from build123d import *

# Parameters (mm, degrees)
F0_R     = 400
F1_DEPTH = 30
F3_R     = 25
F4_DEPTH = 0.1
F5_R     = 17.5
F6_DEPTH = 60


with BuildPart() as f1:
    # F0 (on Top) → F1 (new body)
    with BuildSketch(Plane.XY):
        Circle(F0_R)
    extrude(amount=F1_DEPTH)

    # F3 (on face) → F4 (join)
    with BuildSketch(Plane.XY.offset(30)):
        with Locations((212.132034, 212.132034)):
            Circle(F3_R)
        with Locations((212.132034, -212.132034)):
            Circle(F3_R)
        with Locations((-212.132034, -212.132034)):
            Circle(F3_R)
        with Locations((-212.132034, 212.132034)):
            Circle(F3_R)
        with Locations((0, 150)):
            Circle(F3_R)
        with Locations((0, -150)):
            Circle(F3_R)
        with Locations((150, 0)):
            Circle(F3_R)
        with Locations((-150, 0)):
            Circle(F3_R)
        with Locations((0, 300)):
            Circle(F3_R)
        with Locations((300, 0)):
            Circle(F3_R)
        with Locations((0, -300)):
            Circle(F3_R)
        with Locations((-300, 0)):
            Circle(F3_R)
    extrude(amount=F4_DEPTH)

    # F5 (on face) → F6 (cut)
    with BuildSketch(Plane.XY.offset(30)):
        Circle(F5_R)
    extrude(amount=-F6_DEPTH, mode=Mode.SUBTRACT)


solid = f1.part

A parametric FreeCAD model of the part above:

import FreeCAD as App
import Part
import Sketcher

V = App.Vector

doc = App.newDocument("Part")
body = doc.addObject("PartDesign::Body", "Body")

# Sketch on XY plane
sketch1 = body.newObject("Sketcher::SketchObject", "Sketch")
sketch1.AttachmentSupport = (doc.getObject("XY_Plane"), [""])
sketch1.MapMode = "FlatFace"
sketch1.addGeometry(Part.Circle(V(0, 0, 0), V(0, 0, 1), 400), False)
sketch1.addConstraint([
    Sketcher.Constraint("Coincident", 0, 3, -1, 1),
    Sketcher.Constraint("Diameter", 0, 800.0),
])
pad1 = body.newObject("PartDesign::Pad", "Pad")
pad1.Profile = sketch1
pad1.Length = 30

# Sketch on XY plane
sketch2 = body.newObject("Sketcher::SketchObject", "Sketch001")
sketch2.AttachmentSupport = (doc.getObject("XY_Plane"), [""])
sketch2.MapMode = "FlatFace"
sketch2.AttachmentOffset = App.Placement(V(0, 0, 30), App.Rotation())
sketch2.addGeometry([
    Part.Circle(V(212.132034, 212.132034, 0), V(0, 0, 1), 25),  # 0
    Part.Circle(V(212.132034, -212.132034, 0), V(0, 0, 1), 25),  # 1
    Part.Circle(V(-212.132034, -212.132034, 0), V(0, 0, 1), 25),  # 2
    Part.Circle(V(-212.132034, 212.132034, 0), V(0, 0, 1), 25),  # 3
    Part.Circle(V(0, 150, 0), V(0, 0, 1), 25),  # 4
    Part.Circle(V(0, -150, 0), V(0, 0, 1), 25),  # 5
    Part.Circle(V(150, 0, 0), V(0, 0, 1), 25),  # 6
    Part.Circle(V(-150, 0, 0), V(0, 0, 1), 25),  # 7
    Part.Circle(V(0, 300, 0), V(0, 0, 1), 25),  # 8
    Part.Circle(V(300, 0, 0), V(0, 0, 1), 25),  # 9
    Part.Circle(V(0, -300, 0), V(0, 0, 1), 25),  # 10
    Part.Circle(V(-300, 0, 0), V(0, 0, 1), 25),  # 11
], False)
sketch2.addConstraint([
    Sketcher.Constraint("Equal", 0, 1),
    Sketcher.Constraint("Equal", 1, 2),
    Sketcher.Constraint("Equal", 2, 3),
    Sketcher.Constraint("Equal", 3, 4),
    Sketcher.Constraint("Equal", 4, 5),
    Sketcher.Constraint("Equal", 5, 6),
    Sketcher.Constraint("Equal", 6, 7),
    Sketcher.Constraint("Equal", 7, 8),
    Sketcher.Constraint("Equal", 8, 9),
    Sketcher.Constraint("Equal", 9, 10),
    Sketcher.Constraint("Equal", 10, 11),
    Sketcher.Constraint("Symmetric", 0, 3, 2, 3, -1, 1),
    Sketcher.Constraint("Symmetric", 1, 3, 3, 3, -1, 1),
    Sketcher.Constraint("Symmetric", 4, 3, 5, 3, -1, 1),
    Sketcher.Constraint("Symmetric", 6, 3, 7, 3, -1, 1),
    Sketcher.Constraint("Symmetric", 8, 3, 10, 3, -1, 1),
    Sketcher.Constraint("Symmetric", 9, 3, 11, 3, -1, 1),
    Sketcher.Constraint("Symmetric", 1, 3, 2, 3, -2),
    Sketcher.Constraint("PointOnObject", 4, 3, -2),
    Sketcher.Constraint("PointOnObject", 6, 3, -1),
    Sketcher.Constraint("PointOnObject", 8, 3, -2),
    Sketcher.Constraint("PointOnObject", 9, 3, -1),
    Sketcher.Constraint("Diameter", 0, 50.0),
    Sketcher.Constraint("DistanceY", -1, 1, 4, 3, 150.0),
    Sketcher.Constraint("DistanceX", -1, 1, 6, 3, 150.0),
    Sketcher.Constraint("DistanceY", -1, 1, 8, 3, 300.0),
    Sketcher.Constraint("DistanceX", -1, 1, 9, 3, 300.0),
    Sketcher.Constraint("DistanceY", 1, 3, 0, 3, 424.264068),
    Sketcher.Constraint("DistanceX", 2, 3, 1, 3, 424.264068),
])
pad2 = body.newObject("PartDesign::Pad", "Pad001")
pad2.Profile = sketch2
pad2.Length = 0.1

# Sketch on XY plane
sketch3 = body.newObject("Sketcher::SketchObject", "Sketch002")
sketch3.AttachmentSupport = (doc.getObject("XY_Plane"), [""])
sketch3.MapMode = "FlatFace"
sketch3.AttachmentOffset = App.Placement(V(0, 0, 30), App.Rotation())
sketch3.addGeometry(Part.Circle(V(0, 0, 0), V(0, 0, 1), 17.5), False)
sketch3.addConstraint([
    Sketcher.Constraint("Coincident", 0, 3, -1, 1),
    Sketcher.Constraint("Diameter", 0, 35.0),
])
pocket1 = body.newObject("PartDesign::Pocket", "Pocket")
pocket1.Profile = sketch3
pocket1.Length = 60

doc.recompute()
